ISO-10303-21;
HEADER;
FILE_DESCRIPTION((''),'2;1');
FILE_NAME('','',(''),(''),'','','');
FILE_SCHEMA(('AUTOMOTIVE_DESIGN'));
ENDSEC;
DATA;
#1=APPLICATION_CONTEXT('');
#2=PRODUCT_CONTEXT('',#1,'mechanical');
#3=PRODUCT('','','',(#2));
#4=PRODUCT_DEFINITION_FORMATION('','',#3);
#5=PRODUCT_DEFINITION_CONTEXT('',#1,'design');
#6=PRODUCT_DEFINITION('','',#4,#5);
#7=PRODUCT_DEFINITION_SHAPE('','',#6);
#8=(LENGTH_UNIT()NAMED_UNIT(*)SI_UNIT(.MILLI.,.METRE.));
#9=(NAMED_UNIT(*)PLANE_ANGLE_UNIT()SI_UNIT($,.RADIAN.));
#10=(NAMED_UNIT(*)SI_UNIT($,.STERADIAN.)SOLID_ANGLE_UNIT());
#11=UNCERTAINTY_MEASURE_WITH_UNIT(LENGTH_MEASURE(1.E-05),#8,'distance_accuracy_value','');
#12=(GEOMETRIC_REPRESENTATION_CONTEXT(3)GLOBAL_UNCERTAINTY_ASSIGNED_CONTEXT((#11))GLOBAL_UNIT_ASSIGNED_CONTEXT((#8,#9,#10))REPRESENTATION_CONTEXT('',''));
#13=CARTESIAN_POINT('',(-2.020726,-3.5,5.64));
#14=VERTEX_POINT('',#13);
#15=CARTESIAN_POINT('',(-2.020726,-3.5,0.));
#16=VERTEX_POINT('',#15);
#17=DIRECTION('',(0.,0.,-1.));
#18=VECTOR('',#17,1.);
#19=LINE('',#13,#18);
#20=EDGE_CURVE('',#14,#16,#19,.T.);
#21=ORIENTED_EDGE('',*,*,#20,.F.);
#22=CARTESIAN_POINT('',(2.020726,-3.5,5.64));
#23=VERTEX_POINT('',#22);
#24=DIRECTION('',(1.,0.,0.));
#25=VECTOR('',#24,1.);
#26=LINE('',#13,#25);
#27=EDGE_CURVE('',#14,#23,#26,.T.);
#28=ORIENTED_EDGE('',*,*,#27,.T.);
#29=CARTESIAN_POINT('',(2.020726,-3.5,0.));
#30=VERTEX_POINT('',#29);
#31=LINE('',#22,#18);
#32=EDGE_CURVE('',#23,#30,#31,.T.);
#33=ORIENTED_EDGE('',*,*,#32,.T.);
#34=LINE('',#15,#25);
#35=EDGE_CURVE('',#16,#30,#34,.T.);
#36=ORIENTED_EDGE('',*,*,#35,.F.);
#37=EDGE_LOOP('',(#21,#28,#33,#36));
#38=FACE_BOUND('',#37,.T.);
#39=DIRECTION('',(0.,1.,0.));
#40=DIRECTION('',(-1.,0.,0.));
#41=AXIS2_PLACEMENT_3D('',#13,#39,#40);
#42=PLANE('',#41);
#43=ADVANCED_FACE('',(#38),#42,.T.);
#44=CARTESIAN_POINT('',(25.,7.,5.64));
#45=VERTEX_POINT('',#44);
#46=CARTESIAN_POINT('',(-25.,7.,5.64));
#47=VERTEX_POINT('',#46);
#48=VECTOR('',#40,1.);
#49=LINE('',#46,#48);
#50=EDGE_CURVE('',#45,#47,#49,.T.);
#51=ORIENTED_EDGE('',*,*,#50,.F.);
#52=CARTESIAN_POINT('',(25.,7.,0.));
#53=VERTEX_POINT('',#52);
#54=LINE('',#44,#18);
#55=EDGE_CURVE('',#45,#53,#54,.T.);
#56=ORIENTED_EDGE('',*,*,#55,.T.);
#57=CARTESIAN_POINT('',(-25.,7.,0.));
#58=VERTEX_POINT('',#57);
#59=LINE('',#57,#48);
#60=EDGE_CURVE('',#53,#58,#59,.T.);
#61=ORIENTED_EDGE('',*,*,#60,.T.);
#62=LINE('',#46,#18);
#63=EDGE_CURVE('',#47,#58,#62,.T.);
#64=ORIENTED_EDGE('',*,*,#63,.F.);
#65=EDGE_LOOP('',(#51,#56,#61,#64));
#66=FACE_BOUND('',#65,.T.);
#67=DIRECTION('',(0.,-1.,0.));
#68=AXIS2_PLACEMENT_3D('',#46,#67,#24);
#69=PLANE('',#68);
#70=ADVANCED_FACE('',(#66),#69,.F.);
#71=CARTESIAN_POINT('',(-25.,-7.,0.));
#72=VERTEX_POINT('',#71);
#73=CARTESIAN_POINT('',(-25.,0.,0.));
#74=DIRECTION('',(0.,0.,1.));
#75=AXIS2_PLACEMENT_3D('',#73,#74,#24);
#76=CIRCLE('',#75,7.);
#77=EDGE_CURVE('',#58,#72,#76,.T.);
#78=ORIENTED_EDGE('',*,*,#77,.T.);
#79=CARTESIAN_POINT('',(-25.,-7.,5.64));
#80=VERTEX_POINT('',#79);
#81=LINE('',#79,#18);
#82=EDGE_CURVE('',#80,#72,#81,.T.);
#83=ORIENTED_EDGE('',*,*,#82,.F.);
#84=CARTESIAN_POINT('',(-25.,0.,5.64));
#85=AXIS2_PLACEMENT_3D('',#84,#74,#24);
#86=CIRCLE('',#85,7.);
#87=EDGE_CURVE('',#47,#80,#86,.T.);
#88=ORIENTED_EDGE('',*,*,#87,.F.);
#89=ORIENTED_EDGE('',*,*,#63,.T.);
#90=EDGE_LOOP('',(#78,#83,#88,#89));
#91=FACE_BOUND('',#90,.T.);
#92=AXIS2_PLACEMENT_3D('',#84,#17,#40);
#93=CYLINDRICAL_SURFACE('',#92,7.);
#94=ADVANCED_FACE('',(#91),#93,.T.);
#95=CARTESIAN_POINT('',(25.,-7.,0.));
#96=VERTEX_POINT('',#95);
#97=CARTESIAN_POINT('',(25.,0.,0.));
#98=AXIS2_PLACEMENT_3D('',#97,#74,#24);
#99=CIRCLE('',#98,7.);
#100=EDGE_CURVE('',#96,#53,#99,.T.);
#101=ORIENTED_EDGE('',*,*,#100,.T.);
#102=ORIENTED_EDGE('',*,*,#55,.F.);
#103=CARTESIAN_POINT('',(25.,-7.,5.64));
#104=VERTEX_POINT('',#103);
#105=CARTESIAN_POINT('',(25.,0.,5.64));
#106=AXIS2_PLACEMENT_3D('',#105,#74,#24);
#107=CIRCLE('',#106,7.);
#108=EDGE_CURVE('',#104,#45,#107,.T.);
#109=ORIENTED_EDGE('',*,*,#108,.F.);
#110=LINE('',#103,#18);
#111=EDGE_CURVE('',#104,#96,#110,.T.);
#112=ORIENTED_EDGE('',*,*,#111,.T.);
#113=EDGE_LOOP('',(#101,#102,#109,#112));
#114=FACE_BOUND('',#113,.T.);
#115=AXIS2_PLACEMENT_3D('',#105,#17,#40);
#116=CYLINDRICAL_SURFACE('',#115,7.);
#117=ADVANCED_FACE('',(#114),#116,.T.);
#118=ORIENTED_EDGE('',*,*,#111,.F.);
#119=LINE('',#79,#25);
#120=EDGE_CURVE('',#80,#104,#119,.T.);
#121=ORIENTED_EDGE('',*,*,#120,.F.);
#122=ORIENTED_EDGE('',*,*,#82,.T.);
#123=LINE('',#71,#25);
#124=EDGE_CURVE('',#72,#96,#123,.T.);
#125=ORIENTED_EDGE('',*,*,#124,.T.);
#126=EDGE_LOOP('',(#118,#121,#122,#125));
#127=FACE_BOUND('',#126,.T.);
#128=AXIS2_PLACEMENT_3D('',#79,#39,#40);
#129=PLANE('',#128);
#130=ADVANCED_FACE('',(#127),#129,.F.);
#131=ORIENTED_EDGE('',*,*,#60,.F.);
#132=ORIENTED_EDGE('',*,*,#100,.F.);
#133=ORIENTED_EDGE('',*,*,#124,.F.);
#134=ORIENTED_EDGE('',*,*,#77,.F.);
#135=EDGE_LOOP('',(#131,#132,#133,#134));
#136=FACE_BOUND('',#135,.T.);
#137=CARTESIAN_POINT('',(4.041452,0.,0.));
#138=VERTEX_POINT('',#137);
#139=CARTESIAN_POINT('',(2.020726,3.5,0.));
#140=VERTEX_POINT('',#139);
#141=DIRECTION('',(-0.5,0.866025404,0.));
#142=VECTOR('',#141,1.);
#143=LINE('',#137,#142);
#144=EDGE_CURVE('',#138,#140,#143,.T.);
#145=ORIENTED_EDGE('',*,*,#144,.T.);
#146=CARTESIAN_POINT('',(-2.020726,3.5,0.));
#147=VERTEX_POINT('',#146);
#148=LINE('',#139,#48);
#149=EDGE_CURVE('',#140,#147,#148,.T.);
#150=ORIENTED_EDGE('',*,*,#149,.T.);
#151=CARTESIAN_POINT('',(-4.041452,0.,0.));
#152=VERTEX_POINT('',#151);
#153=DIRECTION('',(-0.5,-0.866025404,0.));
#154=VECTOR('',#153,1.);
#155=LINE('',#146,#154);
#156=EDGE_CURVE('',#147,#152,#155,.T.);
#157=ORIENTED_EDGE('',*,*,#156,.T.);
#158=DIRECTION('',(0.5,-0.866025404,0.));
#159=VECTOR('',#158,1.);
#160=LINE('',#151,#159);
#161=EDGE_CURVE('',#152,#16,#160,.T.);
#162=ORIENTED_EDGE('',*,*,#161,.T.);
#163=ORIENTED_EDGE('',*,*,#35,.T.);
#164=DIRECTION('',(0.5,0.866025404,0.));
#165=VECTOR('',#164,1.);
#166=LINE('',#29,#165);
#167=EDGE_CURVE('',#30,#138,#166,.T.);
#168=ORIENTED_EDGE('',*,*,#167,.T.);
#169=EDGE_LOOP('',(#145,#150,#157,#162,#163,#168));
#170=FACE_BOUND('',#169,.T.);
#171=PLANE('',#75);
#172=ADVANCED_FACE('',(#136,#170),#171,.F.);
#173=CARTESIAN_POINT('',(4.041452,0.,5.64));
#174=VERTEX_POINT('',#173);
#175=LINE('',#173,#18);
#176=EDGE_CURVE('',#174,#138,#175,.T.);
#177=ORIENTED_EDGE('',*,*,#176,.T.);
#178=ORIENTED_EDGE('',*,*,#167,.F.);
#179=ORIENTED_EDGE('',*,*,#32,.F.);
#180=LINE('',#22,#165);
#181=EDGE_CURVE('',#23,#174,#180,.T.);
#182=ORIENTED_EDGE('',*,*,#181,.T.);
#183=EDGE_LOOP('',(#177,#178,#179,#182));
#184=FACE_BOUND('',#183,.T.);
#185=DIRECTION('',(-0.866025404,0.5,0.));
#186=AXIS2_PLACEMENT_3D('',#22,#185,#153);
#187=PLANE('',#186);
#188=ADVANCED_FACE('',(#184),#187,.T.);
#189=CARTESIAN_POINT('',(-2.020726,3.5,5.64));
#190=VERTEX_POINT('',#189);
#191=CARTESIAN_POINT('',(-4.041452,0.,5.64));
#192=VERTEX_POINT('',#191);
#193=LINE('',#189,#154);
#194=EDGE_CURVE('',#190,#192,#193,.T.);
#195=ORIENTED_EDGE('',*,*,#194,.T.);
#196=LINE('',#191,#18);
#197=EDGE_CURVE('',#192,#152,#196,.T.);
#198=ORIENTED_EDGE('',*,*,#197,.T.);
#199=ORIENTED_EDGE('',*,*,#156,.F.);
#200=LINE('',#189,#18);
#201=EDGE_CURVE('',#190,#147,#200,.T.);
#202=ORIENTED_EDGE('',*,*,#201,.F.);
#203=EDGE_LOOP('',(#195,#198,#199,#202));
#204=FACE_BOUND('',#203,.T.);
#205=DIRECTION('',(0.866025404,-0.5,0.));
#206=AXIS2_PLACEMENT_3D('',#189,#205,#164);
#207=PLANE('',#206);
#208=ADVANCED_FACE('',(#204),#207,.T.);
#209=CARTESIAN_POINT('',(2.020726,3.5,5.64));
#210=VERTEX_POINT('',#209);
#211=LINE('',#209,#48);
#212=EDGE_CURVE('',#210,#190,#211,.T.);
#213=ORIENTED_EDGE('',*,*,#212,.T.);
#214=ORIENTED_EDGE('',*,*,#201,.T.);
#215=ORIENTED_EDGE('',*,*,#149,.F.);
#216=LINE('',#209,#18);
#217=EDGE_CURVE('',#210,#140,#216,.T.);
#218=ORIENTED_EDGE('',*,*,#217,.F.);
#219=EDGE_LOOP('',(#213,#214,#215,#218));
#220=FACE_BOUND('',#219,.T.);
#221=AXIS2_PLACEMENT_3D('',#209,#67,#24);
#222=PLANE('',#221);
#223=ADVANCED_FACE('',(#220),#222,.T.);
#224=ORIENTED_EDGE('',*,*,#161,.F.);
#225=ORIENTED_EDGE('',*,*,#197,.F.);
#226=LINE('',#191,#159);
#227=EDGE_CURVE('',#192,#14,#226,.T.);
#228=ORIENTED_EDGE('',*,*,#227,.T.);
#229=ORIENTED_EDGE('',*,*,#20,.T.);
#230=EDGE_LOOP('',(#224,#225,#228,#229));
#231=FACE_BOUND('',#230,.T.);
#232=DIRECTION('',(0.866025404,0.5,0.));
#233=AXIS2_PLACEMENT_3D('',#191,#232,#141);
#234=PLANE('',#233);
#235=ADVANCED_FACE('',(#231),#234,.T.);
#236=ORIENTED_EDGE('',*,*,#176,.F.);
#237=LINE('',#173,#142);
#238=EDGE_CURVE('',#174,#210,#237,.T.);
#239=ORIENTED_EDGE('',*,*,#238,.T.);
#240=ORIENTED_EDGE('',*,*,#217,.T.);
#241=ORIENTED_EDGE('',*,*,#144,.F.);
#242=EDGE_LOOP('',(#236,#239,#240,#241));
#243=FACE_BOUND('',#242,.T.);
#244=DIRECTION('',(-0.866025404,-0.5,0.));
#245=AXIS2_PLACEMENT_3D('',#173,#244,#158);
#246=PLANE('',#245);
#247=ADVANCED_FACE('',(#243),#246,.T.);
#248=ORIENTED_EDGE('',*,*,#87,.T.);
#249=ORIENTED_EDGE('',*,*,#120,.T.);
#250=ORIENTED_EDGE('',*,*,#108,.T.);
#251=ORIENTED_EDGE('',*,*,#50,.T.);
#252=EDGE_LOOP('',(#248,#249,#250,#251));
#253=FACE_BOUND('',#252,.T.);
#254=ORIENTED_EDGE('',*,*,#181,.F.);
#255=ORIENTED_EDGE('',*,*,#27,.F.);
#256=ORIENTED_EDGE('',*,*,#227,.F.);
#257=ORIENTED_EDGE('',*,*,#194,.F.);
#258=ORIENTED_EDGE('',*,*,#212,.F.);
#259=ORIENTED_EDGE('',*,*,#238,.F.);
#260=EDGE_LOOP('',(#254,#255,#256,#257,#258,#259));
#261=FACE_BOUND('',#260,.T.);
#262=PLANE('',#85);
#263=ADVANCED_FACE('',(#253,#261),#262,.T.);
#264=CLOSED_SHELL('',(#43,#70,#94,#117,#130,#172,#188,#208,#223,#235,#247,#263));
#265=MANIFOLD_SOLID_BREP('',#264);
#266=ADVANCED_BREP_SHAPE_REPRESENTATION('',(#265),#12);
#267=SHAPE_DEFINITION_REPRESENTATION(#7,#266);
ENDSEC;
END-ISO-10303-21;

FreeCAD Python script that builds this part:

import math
import FreeCAD as App
import Part
import Sketcher

V = App.Vector
Q = App.Units.Quantity

doc = App.newDocument("Part")
body = doc.addObject("PartDesign::Body", "Body")

sketch1 = body.newObject("Sketcher::SketchObject", "Sketch")
sketch1.AttachmentSupport = (doc.getObject("XY_Plane"), [""])
sketch1.MapMode = "FlatFace"
sketch1.addGeometry(Part.LineSegment(V(25, 7, 0), V(-25, 7, 0)), False)
sketch1.addGeometry(Part.ArcOfCircle(Part.Circle(V(-25, 0, 0), V(0, 0, 1), 7), math.radians(90), math.radians(270)), False)
sketch1.addGeometry(Part.LineSegment(V(-25, -7, 0), V(25, -7, 0)), False)
sketch1.addGeometry(Part.ArcOfCircle(Part.Circle(V(25, 0, 0), V(0, 0, 1), 7), math.radians(-90), math.radians(90)), False)
sketch1.addGeometry(Part.LineSegment(V(-2.020726, 3.5, 0), V(2.020726, 3.5, 0)), False)
sketch1.addGeometry(Part.LineSegment(V(2.020726, 3.5, 0), V(4.041452, 0, 0)), False)
sketch1.addGeometry(Part.LineSegment(V(4.041452, 0, 0), V(2.020726, -3.5, 0)), False)
sketch1.addGeometry(Part.LineSegment(V(2.020726, -3.5, 0), V(-2.020726, -3.5, 0)), False)
sketch1.addGeometry(Part.LineSegment(V(-2.020726, -3.5, 0), V(-4.041452, 0, 0)), False)
sketch1.addGeometry(Part.LineSegment(V(-4.041452, 0, 0), V(-2.020726, 3.5, 0)), False)
sketch1.addConstraint(Sketcher.Constraint("Tangent", 0, 2, 1, 1))
sketch1.addConstraint(Sketcher.Constraint("Tangent", 1, 2, 2, 1))
sketch1.addConstraint(Sketcher.Constraint("Tangent", 2, 2, 3, 1))
sketch1.addConstraint(Sketcher.Constraint("Tangent", 3, 2, 0, 1))
sketch1.addConstraint(Sketcher.Constraint("Coincident", 4, 2, 5, 1))
sketch1.addConstraint(Sketcher.Constraint("Coincident", 5, 2, 6, 1))
sketch1.addConstraint(Sketcher.Constraint("Coincident", 6, 2, 7, 1))
sketch1.addConstraint(Sketcher.Constraint("Coincident", 7, 2, 8, 1))
sketch1.addConstraint(Sketcher.Constraint("Coincident", 8, 2, 9, 1))
sketch1.addConstraint(Sketcher.Constraint("Coincident", 9, 2, 4, 1))
sketch1.addConstraint(Sketcher.Constraint("Horizontal", 0))
sketch1.addConstraint(Sketcher.Constraint("Horizontal", 2))
sketch1.addConstraint(Sketcher.Constraint("Horizontal", 4))
sketch1.addConstraint(Sketcher.Constraint("Horizontal", 7))
sketch1.addConstraint(Sketcher.Constraint("Symmetric", 1, 3, 3, 3, -1, 1))
sketch1.addConstraint(Sketcher.Constraint("Symmetric", 4, 2, 7, 2, -1, 1))
sketch1.addConstraint(Sketcher.Constraint("Symmetric", 5, 2, 8, 2, -1, 1))
sketch1.addConstraint(Sketcher.Constraint("PointOnObject", 5, 2, -1))
sketch1.addConstraint(Sketcher.Constraint("Parallel", 6, 9))
sketch1.addConstraint(Sketcher.Constraint("Vertical", 4, 2, 6, 2))
sketch1.addConstraint(Sketcher.Constraint("Radius", 1, 7.0))
sketch1.addConstraint(Sketcher.Constraint("DistanceX", 0, 2, 0, 1, 50.0))
sketch1.addConstraint(Sketcher.Constraint("Angle", 5, Q("-60 deg")))
sketch1.addConstraint(Sketcher.Constraint("DistanceY", 6, 2, 4, 2, 7.0))
sketch1.addConstraint(Sketcher.Constraint("DistanceX", 4, 1, 4, 2, 4.041452))
pad1 = body.newObject("PartDesign::Pad", "Pad")
pad1.Profile = sketch1
pad1.Length = 5.64

doc.recompute()
